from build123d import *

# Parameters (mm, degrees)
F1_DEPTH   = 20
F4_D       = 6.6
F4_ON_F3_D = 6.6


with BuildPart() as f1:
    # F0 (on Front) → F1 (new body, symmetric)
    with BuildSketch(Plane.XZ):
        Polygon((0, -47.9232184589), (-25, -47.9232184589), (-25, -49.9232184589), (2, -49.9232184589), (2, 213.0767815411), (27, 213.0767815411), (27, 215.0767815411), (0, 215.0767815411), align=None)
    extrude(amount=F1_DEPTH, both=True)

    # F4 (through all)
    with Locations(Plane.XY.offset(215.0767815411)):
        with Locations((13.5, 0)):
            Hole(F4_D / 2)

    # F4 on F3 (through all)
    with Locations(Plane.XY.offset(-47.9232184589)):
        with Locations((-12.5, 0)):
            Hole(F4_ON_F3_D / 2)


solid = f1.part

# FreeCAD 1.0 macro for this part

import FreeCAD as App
import Part
import Sketcher


def add_polygon(sketch, points):
    """Adds a closed chain of lines whose ends are joined by coincident constraints."""
    first, n = sketch.GeometryCount, len(points)
    for a, b in zip(points, points[1:] + points[:1]):
        sketch.addGeometry(Part.LineSegment(App.Vector(*a, 0), App.Vector(*b, 0)), False)
    for i in range(n):
        sketch.addConstraint(Sketcher.Constraint("Coincident", first + i, 2, first + (i + 1) % n, 1))

doc = App.newDocument("Part")
body = doc.addObject("PartDesign::Body", "Body")

# Sketch on XZ plane
sketch1 = body.newObject("Sketcher::SketchObject", "Sketch")
sketch1.AttachmentSupport = (doc.getObject("XZ_Plane"), [""])
sketch1.MapMode = "FlatFace"
add_polygon(sketch1, [(0, -47.9), (-25, -47.9), (-25, -49.9), (2, -49.9), (2, 213.1), (27, 213.1), (27, 215.1), (0, 215.1)])  # lines 0-7
sketch1.addConstraint([
    Sketcher.Constraint("Horizontal", 0),
    Sketcher.Constraint("Vertical", 1),
    Sketcher.Constraint("Horizontal", 2),
    Sketcher.Constraint("Vertical", 3),
    Sketcher.Constraint("Horizontal", 4),
    Sketcher.Constraint("Vertical", 5),
    Sketcher.Constraint("Horizontal", 6),
    Sketcher.Constraint("Vertical", 7),
    Sketcher.Constraint("PointOnObject", 6, 2, -2),
    Sketcher.Constraint("Equal", 0, 4),
    Sketcher.Constraint("Equal", 1, 5),
    Sketcher.Constraint("DistanceX", 0, 2, 0, 1, 25.0),
    Sketcher.Constraint("DistanceX", 2, 1, 2, 2, 27.0),
    Sketcher.Constraint("DistanceY", 1, 2, 1, 1, 2.0),
    Sketcher.Constraint("DistanceY", 3, 1, 3, 2, 263.0),
    Sketcher.Constraint("DistanceY", 0, 2, -1, 1, 47.923218),
])
pad1 = body.newObject("PartDesign::Pad", "Pad")
pad1.Profile = sketch1
pad1.Length = 40
pad1.Midplane = True

# Sketch on XY plane
sketch2 = body.newObject("Sketcher::SketchObject", "Sketch001")
sketch2.AttachmentSupport = (doc.getObject("XY_Plane"), [""])
sketch2.MapMode = "FlatFace"
sketch2.AttachmentOffset = App.Placement(App.Vector(0, 0, 215.076782), App.Rotation())
sketch2.addGeometry(Part.Circle(App.Vector(13.5, 0, 0), App.Vector(0, 0, 1), 3.3), False)
sketch2.addConstraint([
    Sketcher.Constraint("PointOnObject", 0, 3, -1),
    Sketcher.Constraint("Diameter", 0, 6.6),
    Sketcher.Constraint("DistanceX", -1, 1, 0, 3, 13.5),
])
doc.recompute()
hole = body.newObject("PartDesign::Hole", "Hole")
hole.Profile = sketch2
hole.ThreadType = "None"
hole.Diameter = 6.6
hole.DepthType = "ThroughAll"

# Sketch on XY plane
sketch3 = body.newObject("Sketcher::SketchObject", "Sketch002")
sketch3.AttachmentSupport = (doc.getObject("XY_Plane"), [""])
sketch3.MapMode = "FlatFace"
sketch3.AttachmentOffset = App.Placement(App.Vector(0, 0, -47.923218), App.Rotation())
sketch3.addGeometry(Part.Circle(App.Vector(-12.5, 0, 0), App.Vector(0, 0, 1), 3.3), False)
sketch3.addConstraint([
    Sketcher.Constraint("PointOnObject", 0, 3, -1),
    Sketcher.Constraint("Diameter", 0, 6.6),
    Sketcher.Constraint("DistanceX", 0, 3, -1, 1, 12.5),
])
doc.recompute()
hole2 = body.newObject("PartDesign::Hole", "Hole001")
hole2.Profile = sketch3
hole2.ThreadType = "None"
hole2.Diameter = 6.6
hole2.DepthType = "ThroughAll"

doc.recompute()
